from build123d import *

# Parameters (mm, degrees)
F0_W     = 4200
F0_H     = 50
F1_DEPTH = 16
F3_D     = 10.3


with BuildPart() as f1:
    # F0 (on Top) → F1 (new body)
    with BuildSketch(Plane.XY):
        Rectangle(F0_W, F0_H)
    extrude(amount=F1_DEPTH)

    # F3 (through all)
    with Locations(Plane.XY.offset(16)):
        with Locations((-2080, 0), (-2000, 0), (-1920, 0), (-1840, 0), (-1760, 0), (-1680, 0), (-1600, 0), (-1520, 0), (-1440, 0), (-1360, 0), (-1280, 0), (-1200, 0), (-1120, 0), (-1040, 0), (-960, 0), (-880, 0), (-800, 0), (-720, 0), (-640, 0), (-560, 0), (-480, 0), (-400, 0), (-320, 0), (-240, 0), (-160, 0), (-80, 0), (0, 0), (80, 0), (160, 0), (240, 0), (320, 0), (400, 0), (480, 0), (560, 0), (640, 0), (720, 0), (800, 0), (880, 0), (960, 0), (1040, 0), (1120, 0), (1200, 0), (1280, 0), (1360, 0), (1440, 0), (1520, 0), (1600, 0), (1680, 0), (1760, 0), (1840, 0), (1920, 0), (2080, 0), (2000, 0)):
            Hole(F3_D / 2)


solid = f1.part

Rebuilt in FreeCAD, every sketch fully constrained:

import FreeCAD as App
import Part
import Sketcher
Q = App.Units.Quantity

doc = App.newDocument("Part")
body = doc.addObject("PartDesign::Body", "Body")

# Sketch on XY plane
sketch1 = body.newObject("Sketcher::SketchObject", "Sketch")
sketch1.AttachmentSupport = (doc.getObject("XY_Plane"), [""])
sketch1.MapMode = "FlatFace"
sketch1.addGeometry([
    Part.LineSegment(App.Vector(-2100, 25, 0), App.Vector(-2100, -25, 0)),
    Part.LineSegment(App.Vector(-2100, -25, 0), App.Vector(2100, -25, 0)),
    Part.LineSegment(App.Vector(2100, -25, 0), App.Vector(2100, 25, 0)),
    Part.LineSegment(App.Vector(2100, 25, 0), App.Vector(-2100, 25, 0)),
], False)
sketch1.addConstraint([
    Sketcher.Constraint("Coincident", 0, 2, 1, 1),
    Sketcher.Constraint("Coincident", 1, 2, 2, 1),
    Sketcher.Constraint("Coincident", 2, 2, 3, 1),
    Sketcher.Constraint("Coincident", 3, 2, 0, 1),
    Sketcher.Constraint("Vertical", 0),
    Sketcher.Constraint("Horizontal", 1),
    Sketcher.Constraint("Vertical", 2),
    Sketcher.Constraint("Horizontal", 3),
    Sketcher.Constraint("Symmetric", 0, 2, 2, 2, -1, 1),
    Sketcher.Constraint("DistanceX", 1, 1, 1, 2, Q("4200 mm")),
    Sketcher.Constraint("DistanceY", 0, 2, 0, 1, Q("50 mm")),
])
pad1 = body.newObject("PartDesign::Pad", "Pad")
pad1.Profile = sketch1
pad1.Length = 16

# Sketch on XY plane
sketch2 = body.newObject("Sketcher::SketchObject", "Sketch001")
sketch2.AttachmentSupport = (doc.getObject("XY_Plane"), [""])
sketch2.MapMode = "FlatFace"
sketch2.AttachmentOffset = App.Placement(App.Vector(0, 0, 16), App.Rotation())
sketch2.addGeometry([
    Part.Circle(App.Vector(-2080, 0, 0), App.Vector(0, 0, 1), 5),  # 0
    Part.Circle(App.Vector(-2000, 0, 0), App.Vector(0, 0, 1), 5),  # 1
    Part.Circle(App.Vector(-1920, 0, 0), App.Vector(0, 0, 1), 5),  # 2
    Part.Circle(App.Vector(-1840, 0, 0), App.Vector(0, 0, 1), 5),  # 3
    Part.Circle(App.Vector(-1760, 0, 0), App.Vector(0, 0, 1), 5),  # 4
    Part.Circle(App.Vector(-1680, 0, 0), App.Vector(0, 0, 1), 5),  # 5
    Part.Circle(App.Vector(-1600, 0, 0), App.Vector(0, 0, 1), 5),  # 6
    Part.Circle(App.Vector(-1520, 0, 0), App.Vector(0, 0, 1), 5),  # 7
    Part.Circle(App.Vector(-1440, 0, 0), App.Vector(0, 0, 1), 5),  # 8
    Part.Circle(App.Vector(-1360, 0, 0), App.Vector(0, 0, 1), 5),  # 9
    Part.Circle(App.Vector(-1280, 0, 0), App.Vector(0, 0, 1), 5),  # 10
    Part.Circle(App.Vector(-1200, 0, 0), App.Vector(0, 0, 1), 5),  # 11
    Part.Circle(App.Vector(-1120, 0, 0), App.Vector(0, 0, 1), 5),  # 12
    Part.Circle(App.Vector(-1040, 0, 0), App.Vector(0, 0, 1), 5),  # 13
    Part.Circle(App.Vector(-960, 0, 0), App.Vector(0, 0, 1), 5),  # 14
    Part.Circle(App.Vector(-880, 0, 0), App.Vector(0, 0, 1), 5),  # 15
    Part.Circle(App.Vector(-800, 0, 0), App.Vector(0, 0, 1), 5),  # 16
    Part.Circle(App.Vector(-720, 0, 0), App.Vector(0, 0, 1), 5),  # 17
    Part.Circle(App.Vector(-640, 0, 0), App.Vector(0, 0, 1), 5),  # 18
    Part.Circle(App.Vector(-560, 0, 0), App.Vector(0, 0, 1), 5),  # 19
    Part.Circle(App.Vector(-480, 0, 0), App.Vector(0, 0, 1), 5),  # 20
    Part.Circle(App.Vector(-400, 0, 0), App.Vector(0, 0, 1), 5),  # 21
    Part.Circle(App.Vector(-320, 0, 0), App.Vector(0, 0, 1), 5),  # 22
    Part.Circle(App.Vector(-240, 0, 0), App.Vector(0, 0, 1), 5),  # 23
    Part.Circle(App.Vector(-160, 0, 0), App.Vector(0, 0, 1), 5),  # 24
    Part.Circle(App.Vector(-80, 0, 0), App.Vector(0, 0, 1), 5),  # 25
    Part.Circle(App.Vector(0, 0, 0), App.Vector(0, 0, 1), 5),  # 26
    Part.Circle(App.Vector(80, 0, 0), App.Vector(0, 0, 1), 5),  # 27
    Part.Circle(App.Vector(160, 0, 0), App.Vector(0, 0, 1), 5),  # 28
    Part.Circle(App.Vector(240, 0, 0), App.Vector(0, 0, 1), 5),  # 29
    Part.Circle(App.Vector(320, 0, 0), App.Vector(0, 0, 1), 5),  # 30
    Part.Circle(App.Vector(400, 0, 0), App.Vector(0, 0, 1), 5),  # 31
    Part.Circle(App.Vector(480, 0, 0), App.Vector(0, 0, 1), 5),  # 32
    Part.Circle(App.Vector(560, 0, 0), App.Vector(0, 0, 1), 5),  # 33
    Part.Circle(App.Vector(640, 0, 0), App.Vector(0, 0, 1), 5),  # 34
    Part.Circle(App.Vector(720, 0, 0), App.Vector(0, 0, 1), 5),  # 35
    Part.Circle(App.Vector(800, 0, 0), App.Vector(0, 0, 1), 5),  # 36
    Part.Circle(App.Vector(880, 0, 0), App.Vector(0, 0, 1), 5),  # 37
    Part.Circle(App.Vector(960, 0, 0), App.Vector(0, 0, 1), 5),  # 38
    Part.Circle(App.Vector(1040, 0, 0), App.Vector(0, 0, 1), 5),  # 39
    Part.Circle(App.Vector(1120, 0, 0), App.Vector(0, 0, 1), 5),  # 40
    Part.Circle(App.Vector(1200, 0, 0), App.Vector(0, 0, 1), 5),  # 41
    Part.Circle(App.Vector(1280, 0, 0), App.Vector(0, 0, 1), 5),  # 42
    Part.Circle(App.Vector(1360, 0, 0), App.Vector(0, 0, 1), 5),  # 43
    Part.Circle(App.Vector(1440, 0, 0), App.Vector(0, 0, 1), 5),  # 44
    Part.Circle(App.Vector(1520, 0, 0), App.Vector(0, 0, 1), 5),  # 45
    Part.Circle(App.Vector(1600, 0, 0), App.Vector(0, 0, 1), 5),  # 46
    Part.Circle(App.Vector(1680, 0, 0), App.Vector(0, 0, 1), 5),  # 47
    Part.Circle(App.Vector(1760, 0, 0), App.Vector(0, 0, 1), 5),  # 48
    Part.Circle(App.Vector(1840, 0, 0), App.Vector(0, 0, 1), 5),  # 49
    Part.Circle(App.Vector(1920, 0, 0), App.Vector(0, 0, 1), 5),  # 50
    Part.Circle(App.Vector(2080, 0, 0), App.Vector(0, 0, 1), 5),  # 51
    Part.Circle(App.Vector(2000, 0, 0), App.Vector(0, 0, 1), 5),  # 52
], False)
sketch2.addConstraint([
    Sketcher.Constraint("Coincident", 26, 3, -1, 1),
    Sketcher.Constraint("Equal", 0, 1),
    Sketcher.Constraint("Equal", 1, 2),
    Sketcher.Constraint("Equal", 2, 3),
    Sketcher.Constraint("Equal", 3, 4),
    Sketcher.Constraint("Equal", 4, 5),
    Sketcher.Constraint("Equal", 5, 6),
    Sketcher.Constraint("Equal", 6, 7),
    Sketcher.Constraint("Equal", 7, 8),
    Sketcher.Constraint("Equal", 8, 9),
    Sketcher.Constraint("Equal", 9, 10),
    Sketcher.Constraint("Equal", 10, 11),
    Sketcher.Constraint("Equal", 11, 12),
    Sketcher.Constraint("Equal", 12, 13),
    Sketcher.Constraint("Equal", 13, 14),
    Sketcher.Constraint("Equal", 14, 15),
    Sketcher.Constraint("Equal", 15, 16),
    Sketcher.Constraint("Equal", 16, 17),
    Sketcher.Constraint("Equal", 17, 18),
    Sketcher.Constraint("Equal", 18, 19),
    Sketcher.Constraint("Equal", 19, 20),
    Sketcher.Constraint("Equal", 20, 21),
    Sketcher.Constraint("Equal", 21, 22),
    Sketcher.Constraint("Equal", 22, 23),
    Sketcher.Constraint("Equal", 23, 24),
    Sketcher.Constraint("Equal", 24, 25),
    Sketcher.Constraint("Equal", 25, 26),
    Sketcher.Constraint("Equal", 26, 27),
    Sketcher.Constraint("Equal", 27, 28),
    Sketcher.Constraint("Equal", 28, 29),
    Sketcher.Constraint("Equal", 29, 30),
    Sketcher.Constraint("Equal", 30, 31),
    Sketcher.Constraint("Equal", 31, 32),
    Sketcher.Constraint("Equal", 32, 33),
    Sketcher.Constraint("Equal", 33, 34),
    Sketcher.Constraint("Equal", 34, 35),
    Sketcher.Constraint("Equal", 35, 36),
    Sketcher.Constraint("Equal", 36, 37),
    Sketcher.Constraint("Equal", 37, 38),
    Sketcher.Constraint("Equal", 38, 39),
    Sketcher.Constraint("Equal", 39, 40),
    Sketcher.Constraint("Equal", 40, 41),
    Sketcher.Constraint("Equal", 41, 42),
    Sketcher.Constraint("Equal", 42, 43),
    Sketcher.Constraint("Equal", 43, 44),
    Sketcher.Constraint("Equal", 44, 45),
    Sketcher.Constraint("Equal", 45, 46),
    Sketcher.Constraint("Equal", 46, 47),
    Sketcher.Constraint("Equal", 47, 48),
    Sketcher.Constraint("Equal", 48, 49),
    Sketcher.Constraint("Equal", 49, 50),
    Sketcher.Constraint("Equal", 50, 51),
    Sketcher.Constraint("Equal", 51, 52),
    Sketcher.Constraint("Symmetric", 25, 3, 27, 3, -1, 1),
    Sketcher.Constraint("Symmetric", 24, 3, 28, 3, -1, 1),
    Sketcher.Constraint("Symmetric", 23, 3, 29, 3, -1, 1),
    Sketcher.Constraint("Symmetric", 22, 3, 30, 3, -1, 1),
    Sketcher.Constraint("Symmetric", 21, 3, 31, 3, -1, 1),
    Sketcher.Constraint("Symmetric", 20, 3, 32, 3, -1, 1),
    Sketcher.Constraint("Symmetric", 19, 3, 33, 3, -1, 1),
    Sketcher.Constraint("Symmetric", 18, 3, 34, 3, -1, 1),
    Sketcher.Constraint("Symmetric", 17, 3, 35, 3, -1, 1),
    Sketcher.Constraint("Symmetric", 16, 3, 36, 3, -1, 1),
    Sketcher.Constraint("Symmetric", 15, 3, 37, 3, -1, 1),
    Sketcher.Constraint("Symmetric", 14, 3, 38, 3, -1, 1),
    Sketcher.Constraint("Symmetric", 13, 3, 39, 3, -1, 1),
    Sketcher.Constraint("Symmetric", 12, 3, 40, 3, -1, 1),
    Sketcher.Constraint("Symmetric", 11, 3, 41, 3, -1, 1),
    Sketcher.Constraint("Symmetric", 10, 3, 42, 3, -1, 1),
    Sketcher.Constraint("Symmetric", 9, 3, 43, 3, -1, 1),
    Sketcher.Constraint("Symmetric", 8, 3, 44, 3, -1, 1),
    Sketcher.Constraint("Symmetric", 7, 3, 45, 3, -1, 1),
    Sketcher.Constraint("Symmetric", 6, 3, 46, 3, -1, 1),
    Sketcher.Constraint("Symmetric", 5, 3, 47, 3, -1, 1),
    Sketcher.Constraint("Symmetric", 4, 3, 48, 3, -1, 1),
    Sketcher.Constraint("Symmetric", 3, 3, 49, 3, -1, 1),
    Sketcher.Constraint("Symmetric", 2, 3, 50, 3, -1, 1),
    Sketcher.Constraint("Symmetric", 0, 3, 51, 3, -1, 1),
    Sketcher.Constraint("Symmetric", 1, 3, 52, 3, -1, 1),
    Sketcher.Constraint("PointOnObject", 0, 3, -1),
    Sketcher.Constraint("PointOnObject", 1, 3, -1),
    Sketcher.Constraint("PointOnObject", 2, 3, -1),
    Sketcher.Constraint("PointOnObject", 3, 3, -1),
    Sketcher.Constraint("PointOnObject", 4, 3, -1),
    Sketcher.Constraint("PointOnObject", 5, 3, -1),
    Sketcher.Constraint("PointOnObject", 6, 3, -1),
    Sketcher.Constraint("PointOnObject", 7, 3, -1),
    Sketcher.Constraint("PointOnObject", 8, 3, -1),
    Sketcher.Constraint("PointOnObject", 9, 3, -1),
    Sketcher.Constraint("PointOnObject", 10, 3, -1),
    Sketcher.Constraint("PointOnObject", 11, 3, -1),
    Sketcher.Constraint("PointOnObject", 12, 3, -1),
    Sketcher.Constraint("PointOnObject", 13, 3, -1),
    Sketcher.Constraint("PointOnObject", 14, 3, -1),
    Sketcher.Constraint("PointOnObject", 15, 3, -1),
    Sketcher.Constraint("PointOnObject", 16, 3, -1),
    Sketcher.Constraint("PointOnObject", 17, 3, -1),
    Sketcher.Constraint("PointOnObject", 18, 3, -1),
    Sketcher.Constraint("PointOnObject", 19, 3, -1),
    Sketcher.Constraint("PointOnObject", 20, 3, -1),
    Sketcher.Constraint("PointOnObject", 21, 3, -1),
    Sketcher.Constraint("PointOnObject", 22, 3, -1),
    Sketcher.Constraint("PointOnObject", 23, 3, -1),
    Sketcher.Constraint("PointOnObject", 24, 3, -1),
    Sketcher.Constraint("PointOnObject", 25, 3, -1),
    Sketcher.Constraint("Diameter", 0, Q("10.3 mm")),
    Sketcher.Constraint("DistanceX", 0, 3, -1, 1, Q("2080 mm")),
    Sketcher.Constraint("DistanceX", 1, 3, -1, 1, Q("2000 mm")),
    Sketcher.Constraint("DistanceX", 2, 3, -1, 1, Q("1920 mm")),
    Sketcher.Constraint("DistanceX", 3, 3, -1, 1, Q("1840 mm")),
    Sketcher.Constraint("DistanceX", 4, 3, -1, 1, Q("1760 mm")),
    Sketcher.Constraint("DistanceX", 5, 3, -1, 1, Q("1680 mm")),
    Sketcher.Constraint("DistanceX", 6, 3, -1, 1, Q("1600 mm")),
    Sketcher.Constraint("DistanceX", 7, 3, -1, 1, Q("1520 mm")),
    Sketcher.Constraint("DistanceX", 8, 3, -1, 1, Q("1440 mm")),
    Sketcher.Constraint("DistanceX", 9, 3, -1, 1, Q("1360 mm")),
    Sketcher.Constraint("DistanceX", 10, 3, -1, 1, Q("1280 mm")),
    Sketcher.Constraint("DistanceX", 11, 3, -1, 1, Q("1200 mm")),
    Sketcher.Constraint("DistanceX", 12, 3, -1, 1, Q("1120 mm")),
    Sketcher.Constraint("DistanceX", 13, 3, -1, 1, Q("1040 mm")),
    Sketcher.Constraint("DistanceX", 14, 3, -1, 1, Q("960 mm")),
    Sketcher.Constraint("DistanceX", 15, 3, -1, 1, Q("880 mm")),
    Sketcher.Constraint("DistanceX", 16, 3, -1, 1, Q("800 mm")),
    Sketcher.Constraint("DistanceX", 17, 3, -1, 1, Q("720 mm")),
    Sketcher.Constraint("DistanceX", 18, 3, -1, 1, Q("640 mm")),
    Sketcher.Constraint("DistanceX", 19, 3, -1, 1, Q("560 mm")),
    Sketcher.Constraint("DistanceX", 20, 3, -1, 1, Q("480 mm")),
    Sketcher.Constraint("DistanceX", 21, 3, -1, 1, Q("400 mm")),
    Sketcher.Constraint("DistanceX", 22, 3, -1, 1, Q("320 mm")),
    Sketcher.Constraint("DistanceX", 23, 3, -1, 1, Q("240 mm")),
    Sketcher.Constraint("DistanceX", 24, 3, -1, 1, Q("160 mm")),
    Sketcher.Constraint("DistanceX", 25, 3, -1, 1, Q("80 mm")),
])
doc.recompute()
hole = body.newObject("PartDesign::Hole", "Hole")
hole.Profile = sketch2
hole.ThreadType = "None"
hole.Diameter = 10.3
hole.DepthType = "ThroughAll"

doc.recompute()
